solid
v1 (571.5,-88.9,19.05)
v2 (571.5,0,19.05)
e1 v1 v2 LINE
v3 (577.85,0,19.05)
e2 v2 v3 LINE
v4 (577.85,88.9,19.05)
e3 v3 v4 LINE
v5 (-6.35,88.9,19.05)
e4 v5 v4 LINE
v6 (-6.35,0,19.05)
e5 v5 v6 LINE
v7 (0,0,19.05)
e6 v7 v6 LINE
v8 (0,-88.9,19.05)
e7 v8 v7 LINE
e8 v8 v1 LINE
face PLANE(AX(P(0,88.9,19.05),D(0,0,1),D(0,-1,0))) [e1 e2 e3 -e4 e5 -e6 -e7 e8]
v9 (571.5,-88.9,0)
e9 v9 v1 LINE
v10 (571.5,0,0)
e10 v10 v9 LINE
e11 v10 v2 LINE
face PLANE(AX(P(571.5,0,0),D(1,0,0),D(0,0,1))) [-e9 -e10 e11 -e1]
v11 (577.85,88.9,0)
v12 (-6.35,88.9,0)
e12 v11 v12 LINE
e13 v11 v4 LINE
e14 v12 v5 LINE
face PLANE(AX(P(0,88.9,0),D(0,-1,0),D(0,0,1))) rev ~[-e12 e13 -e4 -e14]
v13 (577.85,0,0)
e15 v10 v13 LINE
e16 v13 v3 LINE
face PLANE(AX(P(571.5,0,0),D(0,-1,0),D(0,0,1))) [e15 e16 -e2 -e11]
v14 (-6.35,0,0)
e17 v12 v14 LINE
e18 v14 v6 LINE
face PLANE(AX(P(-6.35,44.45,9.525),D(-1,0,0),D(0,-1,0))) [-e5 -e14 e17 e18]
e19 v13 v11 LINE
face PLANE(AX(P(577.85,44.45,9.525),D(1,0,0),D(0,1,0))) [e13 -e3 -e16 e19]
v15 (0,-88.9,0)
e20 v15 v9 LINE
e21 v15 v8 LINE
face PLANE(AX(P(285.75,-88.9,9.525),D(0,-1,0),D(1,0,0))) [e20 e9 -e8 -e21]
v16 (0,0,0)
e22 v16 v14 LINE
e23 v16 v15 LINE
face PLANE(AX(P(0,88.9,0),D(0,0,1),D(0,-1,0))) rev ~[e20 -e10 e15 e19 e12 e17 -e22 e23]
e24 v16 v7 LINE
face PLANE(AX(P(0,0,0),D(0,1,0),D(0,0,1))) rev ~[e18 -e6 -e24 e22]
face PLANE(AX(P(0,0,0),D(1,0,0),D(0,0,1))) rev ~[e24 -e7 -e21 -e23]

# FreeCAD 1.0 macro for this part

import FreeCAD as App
import Part
import Sketcher

V = App.Vector
Q = App.Units.Quantity

doc = App.newDocument("Part")
body = doc.addObject("PartDesign::Body", "Body")

sketch1 = body.newObject("Sketcher::SketchObject", "Sketch")
sketch1.AttachmentSupport = (doc.getObject("XZ_Plane"), [""])
sketch1.MapMode = "FlatFace"
sketch1.addGeometry([
    Part.LineSegment(V(0, 19, 0), V(0, 0, 0)),
    Part.LineSegment(V(0, 0, 0), V(572, 0, 0)),
    Part.LineSegment(V(572, 0, 0), V(572, 19, 0)),
    Part.LineSegment(V(572, 19, 0), V(0, 19, 0)),
], False)
sketch1.addConstraint([
    Sketcher.Constraint("Coincident", 0, 2, 1, 1),
    Sketcher.Constraint("Coincident", 1, 2, 2, 1),
    Sketcher.Constraint("Coincident", 2, 2, 3, 1),
    Sketcher.Constraint("Coincident", 3, 2, 0, 1),
    Sketcher.Constraint("Vertical", 0),
    Sketcher.Constraint("Horizontal", 1),
    Sketcher.Constraint("Vertical", 2),
    Sketcher.Constraint("Horizontal", 3),
    Sketcher.Constraint("Coincident", 0, 2, -1, 1),
    Sketcher.Constraint("DistanceX", 1, 1, 1, 2, Q("22.5 in")),
    Sketcher.Constraint("DistanceY", 0, 2, 0, 1, Q("0.75 in")),
])
pad1 = body.newObject("PartDesign::Pad", "Pad")
pad1.Profile = sketch1
pad1.Length = Q("7 in")
pad1.Midplane = True

sketch2 = body.newObject("Sketcher::SketchObject", "Sketch001")
sketch2.AttachmentSupport = (doc.getObject("YZ_Plane"), [""])
sketch2.MapMode = "FlatFace"
sketch2.AttachmentOffset = App.Placement(V(0, 0, 22.5 * 25.4), App.Rotation())
sketch2.addGeometry([
    Part.LineSegment(V(0, 19, 0), V(0, 0, 0)),
    Part.LineSegment(V(0, 0, 0), V(89, 0, 0)),
    Part.LineSegment(V(89, 0, 0), V(89, 19, 0)),
    Part.LineSegment(V(89, 19, 0), V(0, 19, 0)),
], False)
sketch2.addConstraint([
    Sketcher.Constraint("Coincident", 0, 2, 1, 1),
    Sketcher.Constraint("Coincident", 1, 2, 2, 1),
    Sketcher.Constraint("Coincident", 2, 2, 3, 1),
    Sketcher.Constraint("Coincident", 3, 2, 0, 1),
    Sketcher.Constraint("Vertical", 0),
    Sketcher.Constraint("Horizontal", 1),
    Sketcher.Constraint("Vertical", 2),
    Sketcher.Constraint("Horizontal", 3),
    Sketcher.Constraint("Coincident", 0, 2, -1, 1),
    Sketcher.Constraint("DistanceX", 1, 1, 1, 2, Q("3.5 in")),
    Sketcher.Constraint("DistanceY", 0, 2, 0, 1, Q("0.75 in")),
])
pad2 = body.newObject("PartDesign::Pad", "Pad001")
pad2.Profile = sketch2
pad2.Length = Q("0.25 in")

sketch3 = body.newObject("Sketcher::SketchObject", "Sketch002")
sketch3.AttachmentSupport = (doc.getObject("YZ_Plane"), [""])
sketch3.MapMode = "FlatFace"
sketch3.addGeometry([
    Part.LineSegment(V(89, 19, 0), V(89, 0, 0)),
    Part.LineSegment(V(89, 0, 0), V(0, 0, 0)),
    Part.LineSegment(V(0, 0, 0), V(0, 19, 0)),
    Part.LineSegment(V(0, 19, 0), V(89, 19, 0)),
], False)
sketch3.addConstraint([
    Sketcher.Constraint("Coincident", 0, 2, 1, 1),
    Sketcher.Constraint("Coincident", 1, 2, 2, 1),
    Sketcher.Constraint("Coincident", 2, 2, 3, 1),
    Sketcher.Constraint("Coincident", 3, 2, 0, 1),
    Sketcher.Constraint("Vertical", 0),
    Sketcher.Constraint("Horizontal", 1),
    Sketcher.Constraint("Vertical", 2),
    Sketcher.Constraint("Horizontal", 3),
    Sketcher.Constraint("Coincident", 1, 2, -1, 1),
    Sketcher.Constraint("DistanceX", 1, 2, 1, 1, Q("3.5 in")),
    Sketcher.Constraint("DistanceY", 0, 2, 0, 1, Q("0.75 in")),
])
pad3 = body.newObject("PartDesign::Pad", "Pad002")
pad3.Profile = sketch3
pad3.Type = "TwoLengths"
pad3.Length = Q("0.25 in")
pad3.Length2 = Q("1 in")
pad3.Reversed = True

doc.recompute()
